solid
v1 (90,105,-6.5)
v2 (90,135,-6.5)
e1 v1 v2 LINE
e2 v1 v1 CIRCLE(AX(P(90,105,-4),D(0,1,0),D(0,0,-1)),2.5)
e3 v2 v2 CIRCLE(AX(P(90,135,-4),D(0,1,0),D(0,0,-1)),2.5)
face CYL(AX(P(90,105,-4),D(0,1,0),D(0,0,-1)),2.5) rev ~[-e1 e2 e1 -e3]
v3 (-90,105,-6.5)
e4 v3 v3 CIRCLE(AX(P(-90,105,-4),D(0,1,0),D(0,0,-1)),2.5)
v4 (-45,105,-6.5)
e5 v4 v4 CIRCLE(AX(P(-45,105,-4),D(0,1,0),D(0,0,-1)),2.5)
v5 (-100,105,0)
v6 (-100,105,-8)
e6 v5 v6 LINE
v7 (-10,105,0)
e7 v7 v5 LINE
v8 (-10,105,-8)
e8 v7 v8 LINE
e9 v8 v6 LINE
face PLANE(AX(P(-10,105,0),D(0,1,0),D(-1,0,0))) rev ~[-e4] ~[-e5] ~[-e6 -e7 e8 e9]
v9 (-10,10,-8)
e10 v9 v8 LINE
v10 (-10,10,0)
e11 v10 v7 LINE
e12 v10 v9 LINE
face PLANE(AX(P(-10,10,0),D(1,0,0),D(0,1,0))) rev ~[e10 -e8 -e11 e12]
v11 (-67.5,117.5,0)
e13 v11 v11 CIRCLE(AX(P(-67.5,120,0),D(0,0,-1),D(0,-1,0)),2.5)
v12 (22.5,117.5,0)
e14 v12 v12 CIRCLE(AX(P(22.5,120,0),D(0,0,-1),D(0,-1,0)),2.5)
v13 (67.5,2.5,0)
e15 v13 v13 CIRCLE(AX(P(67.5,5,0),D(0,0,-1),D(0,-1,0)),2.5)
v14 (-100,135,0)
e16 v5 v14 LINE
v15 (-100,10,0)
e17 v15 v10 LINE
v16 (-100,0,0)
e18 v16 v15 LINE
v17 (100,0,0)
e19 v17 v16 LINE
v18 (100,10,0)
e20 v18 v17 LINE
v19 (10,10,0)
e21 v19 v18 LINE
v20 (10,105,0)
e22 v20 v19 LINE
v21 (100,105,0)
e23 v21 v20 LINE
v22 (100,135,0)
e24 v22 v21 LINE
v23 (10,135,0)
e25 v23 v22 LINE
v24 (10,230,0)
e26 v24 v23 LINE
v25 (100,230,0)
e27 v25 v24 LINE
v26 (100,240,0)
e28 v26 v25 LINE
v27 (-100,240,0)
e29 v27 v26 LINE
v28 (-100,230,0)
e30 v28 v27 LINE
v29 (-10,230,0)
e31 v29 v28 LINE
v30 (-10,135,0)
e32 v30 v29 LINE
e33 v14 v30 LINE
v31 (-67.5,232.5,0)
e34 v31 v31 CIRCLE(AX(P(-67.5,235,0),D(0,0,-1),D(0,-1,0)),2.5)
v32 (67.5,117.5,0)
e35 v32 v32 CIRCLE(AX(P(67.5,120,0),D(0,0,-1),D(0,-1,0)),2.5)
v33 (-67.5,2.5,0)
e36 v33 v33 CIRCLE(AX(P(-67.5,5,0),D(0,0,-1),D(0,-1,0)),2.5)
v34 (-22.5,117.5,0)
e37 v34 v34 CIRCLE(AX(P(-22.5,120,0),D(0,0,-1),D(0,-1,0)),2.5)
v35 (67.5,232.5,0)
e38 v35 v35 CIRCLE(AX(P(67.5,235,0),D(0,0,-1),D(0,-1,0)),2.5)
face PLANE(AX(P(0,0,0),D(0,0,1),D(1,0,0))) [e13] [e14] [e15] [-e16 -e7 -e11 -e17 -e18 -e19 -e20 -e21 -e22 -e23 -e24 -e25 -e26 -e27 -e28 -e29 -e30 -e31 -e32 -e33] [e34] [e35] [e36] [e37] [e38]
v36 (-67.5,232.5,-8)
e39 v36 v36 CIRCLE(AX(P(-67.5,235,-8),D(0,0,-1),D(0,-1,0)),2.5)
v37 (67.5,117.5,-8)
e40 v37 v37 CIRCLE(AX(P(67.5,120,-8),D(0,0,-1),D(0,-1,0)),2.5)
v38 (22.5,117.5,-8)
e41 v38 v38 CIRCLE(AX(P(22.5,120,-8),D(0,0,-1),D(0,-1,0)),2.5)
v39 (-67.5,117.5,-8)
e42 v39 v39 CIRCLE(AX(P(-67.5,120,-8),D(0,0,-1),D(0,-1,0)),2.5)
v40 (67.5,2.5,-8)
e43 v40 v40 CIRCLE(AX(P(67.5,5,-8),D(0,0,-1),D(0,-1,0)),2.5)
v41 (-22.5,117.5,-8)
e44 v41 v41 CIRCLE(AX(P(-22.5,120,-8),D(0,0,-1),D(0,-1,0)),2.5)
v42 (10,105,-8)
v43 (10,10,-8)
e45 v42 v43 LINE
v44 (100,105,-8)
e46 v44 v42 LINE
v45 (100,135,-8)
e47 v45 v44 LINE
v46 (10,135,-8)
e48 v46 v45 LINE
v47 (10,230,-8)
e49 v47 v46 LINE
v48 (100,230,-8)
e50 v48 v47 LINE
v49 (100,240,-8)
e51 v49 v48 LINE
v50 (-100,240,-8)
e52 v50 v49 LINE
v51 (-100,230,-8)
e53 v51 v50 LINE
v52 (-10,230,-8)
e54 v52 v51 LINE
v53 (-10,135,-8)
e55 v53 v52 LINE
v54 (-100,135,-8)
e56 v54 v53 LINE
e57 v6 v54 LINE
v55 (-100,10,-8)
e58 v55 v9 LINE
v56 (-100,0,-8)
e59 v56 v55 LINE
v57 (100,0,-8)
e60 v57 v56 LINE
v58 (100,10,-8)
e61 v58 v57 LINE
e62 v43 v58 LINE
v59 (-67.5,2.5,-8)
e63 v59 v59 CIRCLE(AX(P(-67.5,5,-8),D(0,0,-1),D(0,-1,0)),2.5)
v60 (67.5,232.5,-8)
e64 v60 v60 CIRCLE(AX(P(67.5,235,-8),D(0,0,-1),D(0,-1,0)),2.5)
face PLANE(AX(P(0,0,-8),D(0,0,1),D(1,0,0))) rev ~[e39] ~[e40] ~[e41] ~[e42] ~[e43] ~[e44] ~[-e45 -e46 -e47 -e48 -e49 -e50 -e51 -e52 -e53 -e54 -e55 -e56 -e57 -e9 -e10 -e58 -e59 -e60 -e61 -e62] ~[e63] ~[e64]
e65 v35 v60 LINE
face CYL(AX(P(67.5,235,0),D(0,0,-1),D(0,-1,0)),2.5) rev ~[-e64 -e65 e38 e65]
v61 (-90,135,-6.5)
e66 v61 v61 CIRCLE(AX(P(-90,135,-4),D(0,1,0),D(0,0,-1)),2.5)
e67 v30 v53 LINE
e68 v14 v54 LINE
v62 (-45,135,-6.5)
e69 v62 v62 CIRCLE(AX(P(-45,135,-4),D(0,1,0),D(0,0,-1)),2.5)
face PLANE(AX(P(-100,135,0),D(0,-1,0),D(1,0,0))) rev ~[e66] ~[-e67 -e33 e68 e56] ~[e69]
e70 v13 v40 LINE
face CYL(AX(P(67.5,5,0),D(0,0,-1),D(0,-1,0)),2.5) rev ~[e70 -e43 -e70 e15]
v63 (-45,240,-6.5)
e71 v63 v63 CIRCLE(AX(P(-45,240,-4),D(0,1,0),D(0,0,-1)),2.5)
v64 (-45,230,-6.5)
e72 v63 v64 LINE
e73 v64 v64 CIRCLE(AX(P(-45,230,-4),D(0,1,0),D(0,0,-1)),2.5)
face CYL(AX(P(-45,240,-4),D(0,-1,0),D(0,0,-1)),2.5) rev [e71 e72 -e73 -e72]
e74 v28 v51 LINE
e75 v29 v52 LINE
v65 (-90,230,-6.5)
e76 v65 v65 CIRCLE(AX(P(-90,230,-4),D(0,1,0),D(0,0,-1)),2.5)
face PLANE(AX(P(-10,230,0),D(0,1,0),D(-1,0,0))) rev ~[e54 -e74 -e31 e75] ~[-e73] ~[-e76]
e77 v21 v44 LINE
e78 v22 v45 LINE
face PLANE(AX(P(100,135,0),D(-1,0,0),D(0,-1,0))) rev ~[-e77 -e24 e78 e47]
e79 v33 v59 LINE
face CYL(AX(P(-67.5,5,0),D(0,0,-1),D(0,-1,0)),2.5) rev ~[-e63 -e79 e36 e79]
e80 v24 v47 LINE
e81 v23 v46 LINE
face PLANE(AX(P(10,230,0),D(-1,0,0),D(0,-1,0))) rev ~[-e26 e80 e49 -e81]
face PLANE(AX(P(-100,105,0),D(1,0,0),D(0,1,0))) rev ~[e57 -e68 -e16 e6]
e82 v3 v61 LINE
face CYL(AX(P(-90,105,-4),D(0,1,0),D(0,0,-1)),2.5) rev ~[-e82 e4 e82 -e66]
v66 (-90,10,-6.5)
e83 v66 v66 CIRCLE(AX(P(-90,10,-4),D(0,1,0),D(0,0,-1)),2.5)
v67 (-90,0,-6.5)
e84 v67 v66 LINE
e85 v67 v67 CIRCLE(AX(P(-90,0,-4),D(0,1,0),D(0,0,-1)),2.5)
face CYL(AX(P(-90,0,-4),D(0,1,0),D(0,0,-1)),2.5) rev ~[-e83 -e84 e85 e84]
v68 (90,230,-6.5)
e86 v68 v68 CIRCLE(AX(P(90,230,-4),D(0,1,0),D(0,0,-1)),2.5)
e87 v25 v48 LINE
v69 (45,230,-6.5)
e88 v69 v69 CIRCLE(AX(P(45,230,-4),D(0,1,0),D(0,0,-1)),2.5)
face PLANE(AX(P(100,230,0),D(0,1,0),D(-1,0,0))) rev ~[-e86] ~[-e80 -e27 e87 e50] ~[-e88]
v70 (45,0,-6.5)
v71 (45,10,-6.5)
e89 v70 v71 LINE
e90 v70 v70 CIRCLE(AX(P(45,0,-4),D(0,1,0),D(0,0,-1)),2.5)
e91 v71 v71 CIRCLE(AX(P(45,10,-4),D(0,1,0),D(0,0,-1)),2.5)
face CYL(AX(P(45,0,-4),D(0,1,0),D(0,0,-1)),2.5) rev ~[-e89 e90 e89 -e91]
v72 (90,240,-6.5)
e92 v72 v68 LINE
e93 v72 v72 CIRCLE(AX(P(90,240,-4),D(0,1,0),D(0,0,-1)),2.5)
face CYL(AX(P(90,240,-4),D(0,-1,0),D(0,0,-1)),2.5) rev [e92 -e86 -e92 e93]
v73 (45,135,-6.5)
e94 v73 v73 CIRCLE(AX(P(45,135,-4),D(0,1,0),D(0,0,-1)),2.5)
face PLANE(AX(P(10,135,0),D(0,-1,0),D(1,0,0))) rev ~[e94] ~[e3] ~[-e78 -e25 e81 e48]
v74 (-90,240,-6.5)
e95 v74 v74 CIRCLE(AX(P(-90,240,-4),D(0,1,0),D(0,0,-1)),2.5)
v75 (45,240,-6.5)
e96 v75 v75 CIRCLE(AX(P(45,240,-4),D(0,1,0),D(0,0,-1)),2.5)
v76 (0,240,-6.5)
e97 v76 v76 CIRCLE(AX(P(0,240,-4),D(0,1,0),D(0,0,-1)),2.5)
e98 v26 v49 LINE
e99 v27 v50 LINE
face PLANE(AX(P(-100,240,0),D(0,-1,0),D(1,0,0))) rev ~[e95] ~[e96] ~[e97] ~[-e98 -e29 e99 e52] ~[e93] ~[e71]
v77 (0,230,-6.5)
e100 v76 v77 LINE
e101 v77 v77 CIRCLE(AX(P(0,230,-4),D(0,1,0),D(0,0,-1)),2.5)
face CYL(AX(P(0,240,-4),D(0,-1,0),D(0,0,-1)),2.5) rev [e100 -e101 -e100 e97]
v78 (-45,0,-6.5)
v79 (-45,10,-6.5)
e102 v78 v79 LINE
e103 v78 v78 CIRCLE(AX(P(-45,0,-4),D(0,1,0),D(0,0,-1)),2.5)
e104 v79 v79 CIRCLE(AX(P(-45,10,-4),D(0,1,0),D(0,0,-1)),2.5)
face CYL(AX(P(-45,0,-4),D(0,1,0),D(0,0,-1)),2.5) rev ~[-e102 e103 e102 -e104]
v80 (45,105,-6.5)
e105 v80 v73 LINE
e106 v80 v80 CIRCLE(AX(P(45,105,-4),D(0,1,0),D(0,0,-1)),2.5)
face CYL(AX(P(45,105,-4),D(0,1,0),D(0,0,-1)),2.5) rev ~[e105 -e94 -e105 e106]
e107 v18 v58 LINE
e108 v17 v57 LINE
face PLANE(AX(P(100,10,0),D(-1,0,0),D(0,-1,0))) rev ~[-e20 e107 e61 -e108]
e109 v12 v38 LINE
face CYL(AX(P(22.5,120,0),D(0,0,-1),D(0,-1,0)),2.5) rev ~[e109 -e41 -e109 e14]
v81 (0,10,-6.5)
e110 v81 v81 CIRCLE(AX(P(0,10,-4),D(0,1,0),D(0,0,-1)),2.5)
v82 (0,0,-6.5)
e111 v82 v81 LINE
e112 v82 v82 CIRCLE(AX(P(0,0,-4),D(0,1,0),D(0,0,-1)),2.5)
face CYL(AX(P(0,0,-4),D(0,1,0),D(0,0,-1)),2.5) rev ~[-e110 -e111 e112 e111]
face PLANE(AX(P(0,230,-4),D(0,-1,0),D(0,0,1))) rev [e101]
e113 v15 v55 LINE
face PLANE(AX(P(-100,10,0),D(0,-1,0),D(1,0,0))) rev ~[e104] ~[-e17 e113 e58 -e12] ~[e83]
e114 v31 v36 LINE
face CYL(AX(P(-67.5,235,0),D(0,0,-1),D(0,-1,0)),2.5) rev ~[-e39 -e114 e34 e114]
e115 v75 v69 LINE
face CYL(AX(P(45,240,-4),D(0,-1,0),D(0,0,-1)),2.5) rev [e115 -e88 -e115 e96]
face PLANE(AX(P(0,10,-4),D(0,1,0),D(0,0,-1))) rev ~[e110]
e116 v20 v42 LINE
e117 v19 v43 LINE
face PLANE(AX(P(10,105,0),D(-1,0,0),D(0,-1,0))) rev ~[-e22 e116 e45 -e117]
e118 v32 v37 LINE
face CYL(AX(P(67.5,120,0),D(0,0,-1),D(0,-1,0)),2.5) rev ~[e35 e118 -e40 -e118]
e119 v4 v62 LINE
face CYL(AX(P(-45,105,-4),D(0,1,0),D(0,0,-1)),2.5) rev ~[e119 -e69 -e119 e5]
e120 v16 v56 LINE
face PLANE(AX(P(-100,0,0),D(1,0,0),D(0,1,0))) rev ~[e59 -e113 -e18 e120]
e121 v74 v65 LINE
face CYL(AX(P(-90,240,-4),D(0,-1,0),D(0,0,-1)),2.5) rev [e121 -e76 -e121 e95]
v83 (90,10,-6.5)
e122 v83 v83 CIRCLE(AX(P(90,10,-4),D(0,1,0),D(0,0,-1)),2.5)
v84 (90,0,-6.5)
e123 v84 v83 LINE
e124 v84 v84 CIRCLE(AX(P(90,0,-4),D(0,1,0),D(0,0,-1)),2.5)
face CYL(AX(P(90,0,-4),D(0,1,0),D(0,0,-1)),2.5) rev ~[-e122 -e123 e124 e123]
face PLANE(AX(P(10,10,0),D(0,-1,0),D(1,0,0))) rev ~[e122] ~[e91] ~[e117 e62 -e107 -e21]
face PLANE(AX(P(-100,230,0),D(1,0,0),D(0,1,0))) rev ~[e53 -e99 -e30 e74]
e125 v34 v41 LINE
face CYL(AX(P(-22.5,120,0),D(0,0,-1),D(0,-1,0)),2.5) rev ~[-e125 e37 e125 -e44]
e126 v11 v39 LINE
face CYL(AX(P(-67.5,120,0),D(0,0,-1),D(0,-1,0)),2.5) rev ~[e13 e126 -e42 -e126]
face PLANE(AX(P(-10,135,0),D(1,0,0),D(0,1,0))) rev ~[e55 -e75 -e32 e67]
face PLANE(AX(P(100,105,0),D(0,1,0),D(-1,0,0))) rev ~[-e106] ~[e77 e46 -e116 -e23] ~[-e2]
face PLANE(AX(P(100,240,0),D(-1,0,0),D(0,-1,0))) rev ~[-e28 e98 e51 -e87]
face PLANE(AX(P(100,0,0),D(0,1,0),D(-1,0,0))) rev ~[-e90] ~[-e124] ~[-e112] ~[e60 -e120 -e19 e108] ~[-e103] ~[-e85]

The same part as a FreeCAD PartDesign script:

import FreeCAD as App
import Part
import Sketcher

V = App.Vector
Q = App.Units.Quantity

doc = App.newDocument("Part")
body = doc.addObject("PartDesign::Body", "Body")

# Sketch on XY plane
sketch1 = doc.addObject("Sketcher::SketchObject", "Sketch")
body.addObject(sketch1)
sketch1.AttachmentSupport = (doc.XY_Plane, [""])
sketch1.MapMode = "FlatFace"
sketch1.addGeometry(Part.LineSegment(V(-10, 230, 0), V(-10, 135, 0)), False)
sketch1.addGeometry(Part.LineSegment(V(-10, 135, 0), V(-100, 135, 0)), False)
sketch1.addGeometry(Part.LineSegment(V(-100, 135, 0), V(-100, 105, 0)), False)
sketch1.addGeometry(Part.LineSegment(V(-100, 105, 0), V(-10, 105, 0)), False)
sketch1.addGeometry(Part.LineSegment(V(-10, 105, 0), V(-10, 10, 0)), False)
sketch1.addGeometry(Part.LineSegment(V(-10, 10, 0), V(-100, 10, 0)), False)
sketch1.addGeometry(Part.LineSegment(V(-100, 10, 0), V(-100, 0, 0)), False)
sketch1.addGeometry(Part.LineSegment(V(-100, 0, 0), V(100, 0, 0)), False)
sketch1.addGeometry(Part.LineSegment(V(100, 0, 0), V(100, 10, 0)), False)
sketch1.addGeometry(Part.LineSegment(V(100, 10, 0), V(10, 10, 0)), False)
sketch1.addGeometry(Part.LineSegment(V(10, 10, 0), V(10, 105, 0)), False)
sketch1.addGeometry(Part.LineSegment(V(10, 105, 0), V(100, 105, 0)), False)
sketch1.addGeometry(Part.LineSegment(V(100, 105, 0), V(100, 135, 0)), False)
sketch1.addGeometry(Part.LineSegment(V(100, 135, 0), V(10, 135, 0)), False)
sketch1.addGeometry(Part.LineSegment(V(10, 135, 0), V(10, 230, 0)), False)
sketch1.addGeometry(Part.LineSegment(V(10, 230, 0), V(100, 230, 0)), False)
sketch1.addGeometry(Part.LineSegment(V(100, 230, 0), V(100, 240, 0)), False)
sketch1.addGeometry(Part.LineSegment(V(100, 240, 0), V(-100, 240, 0)), False)
sketch1.addGeometry(Part.LineSegment(V(-100, 240, 0), V(-100, 230, 0)), False)
sketch1.addGeometry(Part.LineSegment(V(-100, 230, 0), V(-10, 230, 0)), False)
sketch1.addConstraint(Sketcher.Constraint("Coincident", 0, 2, 1, 1))
sketch1.addConstraint(Sketcher.Constraint("Coincident", 1, 2, 2, 1))
sketch1.addConstraint(Sketcher.Constraint("Coincident", 2, 2, 3, 1))
sketch1.addConstraint(Sketcher.Constraint("Coincident", 3, 2, 4, 1))
sketch1.addConstraint(Sketcher.Constraint("Coincident", 4, 2, 5, 1))
sketch1.addConstraint(Sketcher.Constraint("Coincident", 5, 2, 6, 1))
sketch1.addConstraint(Sketcher.Constraint("Coincident", 6, 2, 7, 1))
sketch1.addConstraint(Sketcher.Constraint("Coincident", 7, 2, 8, 1))
sketch1.addConstraint(Sketcher.Constraint("Coincident", 8, 2, 9, 1))
sketch1.addConstraint(Sketcher.Constraint("Coincident", 9, 2, 10, 1))
sketch1.addConstraint(Sketcher.Constraint("Coincident", 10, 2, 11, 1))
sketch1.addConstraint(Sketcher.Constraint("Coincident", 11, 2, 12, 1))
sketch1.addConstraint(Sketcher.Constraint("Coincident", 12, 2, 13, 1))
sketch1.addConstraint(Sketcher.Constraint("Coincident", 13, 2, 14, 1))
sketch1.addConstraint(Sketcher.Constraint("Coincident", 14, 2, 15, 1))
sketch1.addConstraint(Sketcher.Constraint("Coincident", 15, 2, 16, 1))
sketch1.addConstraint(Sketcher.Constraint("Coincident", 16, 2, 17, 1))
sketch1.addConstraint(Sketcher.Constraint("Coincident", 17, 2, 18, 1))
sketch1.addConstraint(Sketcher.Constraint("Coincident", 18, 2, 19, 1))
sketch1.addConstraint(Sketcher.Constraint("Coincident", 19, 2, 0, 1))
sketch1.addConstraint(Sketcher.Constraint("Vertical", 0))
sketch1.addConstraint(Sketcher.Constraint("Horizontal", 1))
sketch1.addConstraint(Sketcher.Constraint("Vertical", 2))
sketch1.addConstraint(Sketcher.Constraint("Horizontal", 3))
sketch1.addConstraint(Sketcher.Constraint("Vertical", 4))
sketch1.addConstraint(Sketcher.Constraint("Horizontal", 5))
sketch1.addConstraint(Sketcher.Constraint("Vertical", 6))
sketch1.addConstraint(Sketcher.Constraint("Horizontal", 7))
sketch1.addConstraint(Sketcher.Constraint("Vertical", 8))
sketch1.addConstraint(Sketcher.Constraint("Horizontal", 9))
sketch1.addConstraint(Sketcher.Constraint("Vertical", 10))
sketch1.addConstraint(Sketcher.Constraint("Horizontal", 11))
sketch1.addConstraint(Sketcher.Constraint("Vertical", 12))
sketch1.addConstraint(Sketcher.Constraint("Horizontal", 13))
sketch1.addConstraint(Sketcher.Constraint("Vertical", 14))
sketch1.addConstraint(Sketcher.Constraint("Horizontal", 15))
sketch1.addConstraint(Sketcher.Constraint("Vertical", 16))
sketch1.addConstraint(Sketcher.Constraint("Horizontal", 17))
sketch1.addConstraint(Sketcher.Constraint("Vertical", 18))
sketch1.addConstraint(Sketcher.Constraint("Horizontal", 19))
sketch1.addConstraint(Sketcher.Constraint("Symmetric", 6, 2, 7, 2, -1, 1))
sketch1.addConstraint(Sketcher.Constraint("Symmetric", 4, 2, 9, 2, -2))
sketch1.addConstraint(Sketcher.Constraint("Symmetric", 2, 2, 11, 2, -2))
sketch1.addConstraint(Sketcher.Constraint("Symmetric", 0, 2, 13, 2, -2))
sketch1.addConstraint(Sketcher.Constraint("Symmetric", 15, 2, 18, 2, -2))
sketch1.addConstraint(Sketcher.Constraint("Vertical", 0, 2, 3, 2))
sketch1.addConstraint(Sketcher.Constraint("Vertical", 2, 2, 5, 2))
sketch1.addConstraint(Sketcher.Constraint("Vertical", 12, 2, 15, 2))
sketch1.addConstraint(Sketcher.Constraint("Equal", 0, 4))
sketch1.addConstraint(Sketcher.Constraint("Equal", 8, 16))
sketch1.addConstraint(Sketcher.Constraint("DistanceX", 7, 1, 7, 2, Q("200 mm")))
sketch1.addConstraint(Sketcher.Constraint("DistanceY", 0, 2, 0, 1, Q("95 mm")))
sketch1.addConstraint(Sketcher.Constraint("DistanceY", 2, 2, 2, 1, Q("30 mm")))
sketch1.addConstraint(Sketcher.Constraint("DistanceY", 6, 2, 6, 1, Q("10 mm")))
sketch1.addConstraint(Sketcher.Constraint("DistanceX", 0, 2, -1, 1, Q("10 mm")))
pad1 = doc.addObject("PartDesign::Pad", "Pad")
body.addObject(pad1)
pad1.Profile = sketch1
pad1.Length = 8
pad1.Reversed = True

# Sketch on XY plane
sketch2 = doc.addObject("Sketcher::SketchObject", "Sketch001")
body.addObject(sketch2)
sketch2.AttachmentSupport = (doc.XY_Plane, [""])
sketch2.MapMode = "FlatFace"
sketch2.addGeometry(Part.Circle(V(-67.5, 120, 0), V(0, 0, 1), 2.5), False)
sketch2.addGeometry(Part.Circle(V(-22.5, 120, 0), V(0, 0, 1), 2.5), False)
sketch2.addGeometry(Part.Circle(V(22.5, 120, 0), V(0, 0, 1), 2.5), False)
sketch2.addGeometry(Part.Circle(V(67.5, 120, 0), V(0, 0, 1), 2.5), False)
sketch2.addGeometry(Part.Circle(V(-67.5, 235, 0), V(0, 0, 1), 2.5), False)
sketch2.addGeometry(Part.Circle(V(67.5, 235, 0), V(0, 0, 1), 2.5), False)
sketch2.addGeometry(Part.Circle(V(67.5, 5, 0), V(0, 0, 1), 2.5), False)
sketch2.addGeometry(Part.Circle(V(-67.5, 5, 0), V(0, 0, 1), 2.5), False)
sketch2.addConstraint(Sketcher.Constraint("Equal", 0, 1))
sketch2.addConstraint(Sketcher.Constraint("Equal", 1, 2))
sketch2.addConstraint(Sketcher.Constraint("Equal", 2, 3))
sketch2.addConstraint(Sketcher.Constraint("Equal", 3, 4))
sketch2.addConstraint(Sketcher.Constraint("Equal", 4, 5))
sketch2.addConstraint(Sketcher.Constraint("Equal", 5, 6))
sketch2.addConstraint(Sketcher.Constraint("Equal", 6, 7))
sketch2.addConstraint(Sketcher.Constraint("Symmetric", 1, 3, 2, 3, -2))
sketch2.addConstraint(Sketcher.Constraint("Symmetric", 0, 3, 3, 3, -2))
sketch2.addConstraint(Sketcher.Constraint("Symmetric", 4, 3, 5, 3, -2))
sketch2.addConstraint(Sketcher.Constraint("Symmetric", 6, 3, 7, 3, -2))
sketch2.addConstraint(Sketcher.Constraint("Horizontal", 0, 3, 1, 3))
sketch2.addConstraint(Sketcher.Constraint("Vertical", 0, 3, 4, 3))
sketch2.addConstraint(Sketcher.Constraint("Vertical", 5, 3, 6, 3))
sketch2.addConstraint(Sketcher.Constraint("Diameter", 0, Q("5 mm")))
sketch2.addConstraint(Sketcher.Constraint("DistanceY", -1, 1, 0, 3, Q("120 mm")))
sketch2.addConstraint(Sketcher.Constraint("DistanceY", -1, 1, 4, 3, Q("235 mm")))
sketch2.addConstraint(Sketcher.Constraint("DistanceY", -1, 1, 6, 3, Q("5 mm")))
sketch2.addConstraint(Sketcher.Constraint("DistanceX", 0, 3, 1, 3, Q("45 mm")))
sketch2.addConstraint(Sketcher.Constraint("DistanceX", 1, 3, 2, 3, Q("45 mm")))
doc.recompute()
hole = doc.addObject("PartDesign::Hole", "Hole")
body.addObject(hole)
hole.Profile = sketch2
hole.ThreadType = "None"
hole.Diameter = 5
hole.DepthType = "Dimension"
hole.Depth = 8
hole.DrillPoint = "Flat"

# Sketch on XZ plane
sketch3 = doc.addObject("Sketcher::SketchObject", "Sketch002")
body.addObject(sketch3)
sketch3.AttachmentSupport = (doc.XZ_Plane, [""])
sketch3.MapMode = "FlatFace"
sketch3.addGeometry(Part.Circle(V(-90, -4, 0), V(0, 0, 1), 2.5), False)
sketch3.addGeometry(Part.Circle(V(-45, -4, 0), V(0, 0, 1), 2.5), False)
sketch3.addGeometry(Part.Circle(V(45, -4, 0), V(0, 0, 1), 2.5), False)
sketch3.addGeometry(Part.Circle(V(90, -4, 0), V(0, 0, 1), 2.5), False)
sketch3.addGeometry(Part.Circle(V(0, -4, 0), V(0, 0, 1), 2.5), False)
sketch3.addConstraint(Sketcher.Constraint("Equal", 0, 1))
sketch3.addConstraint(Sketcher.Constraint("Equal", 1, 2))
sketch3.addConstraint(Sketcher.Constraint("Equal", 2, 3))
sketch3.addConstraint(Sketcher.Constraint("Equal", 3, 4))
sketch3.addConstraint(Sketcher.Constraint("Symmetric", 1, 3, 2, 3, -2))
sketch3.addConstraint(Sketcher.Constraint("Symmetric", 0, 3, 3, 3, -2))
sketch3.addConstraint(Sketcher.Constraint("PointOnObject", 4, 3, -2))
sketch3.addConstraint(Sketcher.Constraint("Horizontal", 0, 3, 1, 3))
sketch3.addConstraint(Sketcher.Constraint("Horizontal", 3, 3, 4, 3))
sketch3.addConstraint(Sketcher.Constraint("Diameter", 0, Q("5 mm")))
sketch3.addConstraint(Sketcher.Constraint("DistanceX", 0, 3, -1, 1, Q("90 mm")))
sketch3.addConstraint(Sketcher.Constraint("DistanceY", 0, 3, -1, 1, Q("4 mm")))
sketch3.addConstraint(Sketcher.Constraint("DistanceX", 1, 3, -1, 1, Q("45 mm")))
doc.recompute()
hole2 = doc.addObject("PartDesign::Hole", "Hole001")
body.addObject(hole2)
hole2.Profile = sketch3
hole2.ThreadType = "None"
hole2.Diameter = 5
hole2.DepthType = "Dimension"
hole2.Depth = 10
hole2.DrillPoint = "Flat"
doc.recompute()

datumplane = doc.addObject("PartDesign::Plane", "DatumPlane")
body.addObject(datumplane)
datumplane.AttachmentSupport = (doc.XZ_Plane, [""])
datumplane.MapMode = "FlatFace"
datumplane.AttachmentOffset = App.Placement(V(0, 0, -120), App.Rotation())
mirrored = doc.addObject("PartDesign::Mirrored", "Mirrored")
body.addObject(mirrored)
mirrored.Originals = [hole2]
mirrored.MirrorPlane = (datumplane, [""])
body.Tip = mirrored

# Sketch on XZ plane
sketch4 = doc.addObject("Sketcher::SketchObject", "Sketch003")
body.addObject(sketch4)
sketch4.AttachmentSupport = (doc.XZ_Plane, [""])
sketch4.MapMode = "FlatFace"
sketch4.AttachmentOffset = App.Placement(V(0, 0, -105), App.Rotation())
sketch4.addGeometry(Part.Circle(V(-90, -4, 0), V(0, 0, 1), 2.5), False)
sketch4.addGeometry(Part.Circle(V(-45, -4, 0), V(0, 0, 1), 2.5), False)
sketch4.addGeometry(Part.Circle(V(45, -4, 0), V(0, 0, 1), 2.5), False)
sketch4.addGeometry(Part.Circle(V(90, -4, 0), V(0, 0, 1), 2.5), False)
sketch4.addConstraint(Sketcher.Constraint("Equal", 0, 1))
sketch4.addConstraint(Sketcher.Constraint("Equal", 1, 2))
sketch4.addConstraint(Sketcher.Constraint("Equal", 2, 3))
sketch4.addConstraint(Sketcher.Constraint("Symmetric", 1, 3, 2, 3, -2))
sketch4.addConstraint(Sketcher.Constraint("Symmetric", 0, 3, 3, 3, -2))
sketch4.addConstraint(Sketcher.Constraint("Horizontal", 0, 3, 1, 3))
sketch4.addConstraint(Sketcher.Constraint("Diameter", 0, Q("5 mm")))
sketch4.addConstraint(Sketcher.Constraint("DistanceX", 0, 3, -1, 1, Q("90 mm")))
sketch4.addConstraint(Sketcher.Constraint("DistanceY", 0, 3, -1, 1, Q("4 mm")))
sketch4.addConstraint(Sketcher.Constraint("DistanceX", 1, 3, -1, 1, Q("45 mm")))
doc.recompute()
hole3 = doc.addObject("PartDesign::Hole", "Hole002")
body.addObject(hole3)
hole3.Profile = sketch4
hole3.ThreadType = "None"
hole3.Diameter = 5
hole3.DepthType = "Dimension"
hole3.Depth = 30
hole3.DrillPoint = "Flat"

doc.recompute()
